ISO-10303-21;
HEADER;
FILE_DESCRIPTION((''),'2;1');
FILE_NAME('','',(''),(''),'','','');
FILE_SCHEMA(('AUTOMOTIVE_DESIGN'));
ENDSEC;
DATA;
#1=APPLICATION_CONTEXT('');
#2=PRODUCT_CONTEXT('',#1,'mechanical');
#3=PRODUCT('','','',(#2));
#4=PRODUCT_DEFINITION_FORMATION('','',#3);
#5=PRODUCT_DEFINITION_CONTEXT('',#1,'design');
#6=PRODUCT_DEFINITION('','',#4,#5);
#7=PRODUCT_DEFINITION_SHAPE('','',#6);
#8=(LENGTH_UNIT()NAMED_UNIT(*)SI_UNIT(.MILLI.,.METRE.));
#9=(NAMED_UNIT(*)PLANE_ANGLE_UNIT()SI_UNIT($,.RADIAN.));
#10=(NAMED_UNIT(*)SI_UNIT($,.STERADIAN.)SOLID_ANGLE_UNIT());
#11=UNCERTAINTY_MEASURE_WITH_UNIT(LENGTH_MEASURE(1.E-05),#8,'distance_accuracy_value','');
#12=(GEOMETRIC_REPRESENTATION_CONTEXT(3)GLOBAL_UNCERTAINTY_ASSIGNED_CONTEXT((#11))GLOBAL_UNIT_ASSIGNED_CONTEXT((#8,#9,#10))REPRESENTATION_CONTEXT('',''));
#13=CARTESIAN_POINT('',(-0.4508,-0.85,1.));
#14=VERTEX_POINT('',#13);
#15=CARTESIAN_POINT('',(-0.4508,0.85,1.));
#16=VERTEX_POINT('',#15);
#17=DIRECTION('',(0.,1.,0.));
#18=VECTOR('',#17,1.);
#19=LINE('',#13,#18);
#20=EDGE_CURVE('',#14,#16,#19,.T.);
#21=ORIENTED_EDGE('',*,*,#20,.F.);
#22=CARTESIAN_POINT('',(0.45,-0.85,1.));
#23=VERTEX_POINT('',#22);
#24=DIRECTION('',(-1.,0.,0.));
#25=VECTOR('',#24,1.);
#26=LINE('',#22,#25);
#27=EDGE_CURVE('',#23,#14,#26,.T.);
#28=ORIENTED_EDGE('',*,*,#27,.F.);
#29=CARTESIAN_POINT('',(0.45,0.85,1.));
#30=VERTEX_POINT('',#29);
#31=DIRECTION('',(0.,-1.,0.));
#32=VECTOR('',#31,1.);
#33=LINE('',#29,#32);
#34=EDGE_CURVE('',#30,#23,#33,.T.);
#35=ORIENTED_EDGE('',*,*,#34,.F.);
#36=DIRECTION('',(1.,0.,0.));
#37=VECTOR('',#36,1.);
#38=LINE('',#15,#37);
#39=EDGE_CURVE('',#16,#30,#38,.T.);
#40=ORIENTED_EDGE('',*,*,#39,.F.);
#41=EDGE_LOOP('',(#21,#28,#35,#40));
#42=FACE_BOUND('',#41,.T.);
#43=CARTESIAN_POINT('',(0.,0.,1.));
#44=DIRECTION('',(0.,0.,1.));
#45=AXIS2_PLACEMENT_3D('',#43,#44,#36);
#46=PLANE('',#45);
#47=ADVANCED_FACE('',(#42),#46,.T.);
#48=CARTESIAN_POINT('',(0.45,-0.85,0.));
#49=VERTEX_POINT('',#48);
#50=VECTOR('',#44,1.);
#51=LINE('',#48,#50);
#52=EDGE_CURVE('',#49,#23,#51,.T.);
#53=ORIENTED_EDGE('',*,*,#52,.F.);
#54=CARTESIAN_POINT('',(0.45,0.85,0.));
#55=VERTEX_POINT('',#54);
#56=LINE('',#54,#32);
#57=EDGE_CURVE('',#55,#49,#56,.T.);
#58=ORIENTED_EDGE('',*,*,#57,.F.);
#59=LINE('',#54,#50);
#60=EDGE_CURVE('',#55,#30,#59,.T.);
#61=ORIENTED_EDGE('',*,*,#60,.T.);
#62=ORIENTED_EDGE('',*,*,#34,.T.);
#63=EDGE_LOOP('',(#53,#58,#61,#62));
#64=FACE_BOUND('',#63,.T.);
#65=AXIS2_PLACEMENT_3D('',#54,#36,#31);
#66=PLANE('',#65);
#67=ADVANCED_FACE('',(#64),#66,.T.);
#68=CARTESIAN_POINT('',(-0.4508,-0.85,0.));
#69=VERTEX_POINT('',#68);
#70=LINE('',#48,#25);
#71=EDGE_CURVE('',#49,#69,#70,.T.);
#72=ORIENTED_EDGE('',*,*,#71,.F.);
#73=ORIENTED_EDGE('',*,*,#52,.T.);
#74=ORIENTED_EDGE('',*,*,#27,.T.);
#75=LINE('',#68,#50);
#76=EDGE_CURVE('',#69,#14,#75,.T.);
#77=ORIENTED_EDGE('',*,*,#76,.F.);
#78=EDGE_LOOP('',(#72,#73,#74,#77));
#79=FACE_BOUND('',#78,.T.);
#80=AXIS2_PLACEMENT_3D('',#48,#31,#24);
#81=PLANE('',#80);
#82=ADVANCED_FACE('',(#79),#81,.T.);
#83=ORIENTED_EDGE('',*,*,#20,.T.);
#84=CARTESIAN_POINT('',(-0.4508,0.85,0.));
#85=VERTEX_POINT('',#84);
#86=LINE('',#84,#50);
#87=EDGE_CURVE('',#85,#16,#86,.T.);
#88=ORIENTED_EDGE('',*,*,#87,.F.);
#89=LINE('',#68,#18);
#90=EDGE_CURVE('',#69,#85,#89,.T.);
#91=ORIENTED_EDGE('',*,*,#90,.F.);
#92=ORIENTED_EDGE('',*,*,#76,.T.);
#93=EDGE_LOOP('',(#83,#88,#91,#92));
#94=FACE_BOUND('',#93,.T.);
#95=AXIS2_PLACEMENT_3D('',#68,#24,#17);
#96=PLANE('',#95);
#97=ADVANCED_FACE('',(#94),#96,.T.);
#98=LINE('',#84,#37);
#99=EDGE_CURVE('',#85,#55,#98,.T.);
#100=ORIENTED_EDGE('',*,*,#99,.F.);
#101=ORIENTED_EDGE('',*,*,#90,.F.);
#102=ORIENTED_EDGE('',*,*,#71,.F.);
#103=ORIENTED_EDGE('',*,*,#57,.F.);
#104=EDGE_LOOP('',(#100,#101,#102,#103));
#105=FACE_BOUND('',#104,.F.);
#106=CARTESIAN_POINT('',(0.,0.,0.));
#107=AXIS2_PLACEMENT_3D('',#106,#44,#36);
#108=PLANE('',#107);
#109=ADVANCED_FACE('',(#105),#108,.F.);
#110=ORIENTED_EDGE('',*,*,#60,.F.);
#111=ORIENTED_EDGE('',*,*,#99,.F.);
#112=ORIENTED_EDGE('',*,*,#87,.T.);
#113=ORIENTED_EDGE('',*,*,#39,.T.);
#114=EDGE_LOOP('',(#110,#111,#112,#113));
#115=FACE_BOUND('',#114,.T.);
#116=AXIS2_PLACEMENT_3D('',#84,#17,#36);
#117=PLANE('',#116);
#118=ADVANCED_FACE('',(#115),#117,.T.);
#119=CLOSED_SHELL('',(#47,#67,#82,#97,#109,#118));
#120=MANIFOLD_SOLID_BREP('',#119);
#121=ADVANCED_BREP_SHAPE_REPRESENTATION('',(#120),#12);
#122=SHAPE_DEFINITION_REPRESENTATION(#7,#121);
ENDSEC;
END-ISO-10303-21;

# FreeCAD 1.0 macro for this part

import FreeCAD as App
import Part
import Sketcher
from FreeCAD import Vector
Q = App.Units.Quantity


def add_polygon(sketch, points):
    """Adds a closed chain of lines whose ends are joined by coincident constraints."""
    first, n = sketch.GeometryCount, len(points)
    for a, b in zip(points, points[1:] + points[:1]):
        sketch.addGeometry(Part.LineSegment(App.Vector(*a, 0), App.Vector(*b, 0)), False)
    for i in range(n):
        sketch.addConstraint(Sketcher.Constraint("Coincident", first + i, 2, first + (i + 1) % n, 1))

doc = App.newDocument("Part")
body = doc.addObject("PartDesign::Body", "Body")

sketch1 = body.newObject("Sketcher::SketchObject", "Sketch")
sketch1.AttachmentSupport = (doc.getObject("XY_Plane"), [""])
sketch1.MapMode = "FlatFace"
add_polygon(sketch1, [(0.5, 0.8), (-0.5, 0.8), (-0.5, -0.8), (0.5, -0.8)])
sketch1.addConstraint(Sketcher.Constraint("Horizontal", 0))
sketch1.addConstraint(Sketcher.Constraint("Vertical", 1))
sketch1.addConstraint(Sketcher.Constraint("Horizontal", 2))
sketch1.addConstraint(Sketcher.Constraint("Vertical", 3))
sketch1.addConstraint(Sketcher.Constraint("DistanceY", 1, 2, 1, 1, Q("1.7 mm")))
sketch1.addConstraint(Sketcher.Constraint("DistanceY", -1, 1, 0, 2, Q("0.85 mm")))
sketch1.addConstraint(Sketcher.Constraint("DistanceX", -1, 1, 2, 2, Q("0.45 mm")))
sketch1.addConstraint(Sketcher.Constraint("DistanceX", 0, 2, 0, 1, Q("0.9008 mm")))
pad1 = body.newObject("PartDesign::Pad", "Pad")
pad1.Profile = sketch1
pad1.Length = 1

doc.recompute()
